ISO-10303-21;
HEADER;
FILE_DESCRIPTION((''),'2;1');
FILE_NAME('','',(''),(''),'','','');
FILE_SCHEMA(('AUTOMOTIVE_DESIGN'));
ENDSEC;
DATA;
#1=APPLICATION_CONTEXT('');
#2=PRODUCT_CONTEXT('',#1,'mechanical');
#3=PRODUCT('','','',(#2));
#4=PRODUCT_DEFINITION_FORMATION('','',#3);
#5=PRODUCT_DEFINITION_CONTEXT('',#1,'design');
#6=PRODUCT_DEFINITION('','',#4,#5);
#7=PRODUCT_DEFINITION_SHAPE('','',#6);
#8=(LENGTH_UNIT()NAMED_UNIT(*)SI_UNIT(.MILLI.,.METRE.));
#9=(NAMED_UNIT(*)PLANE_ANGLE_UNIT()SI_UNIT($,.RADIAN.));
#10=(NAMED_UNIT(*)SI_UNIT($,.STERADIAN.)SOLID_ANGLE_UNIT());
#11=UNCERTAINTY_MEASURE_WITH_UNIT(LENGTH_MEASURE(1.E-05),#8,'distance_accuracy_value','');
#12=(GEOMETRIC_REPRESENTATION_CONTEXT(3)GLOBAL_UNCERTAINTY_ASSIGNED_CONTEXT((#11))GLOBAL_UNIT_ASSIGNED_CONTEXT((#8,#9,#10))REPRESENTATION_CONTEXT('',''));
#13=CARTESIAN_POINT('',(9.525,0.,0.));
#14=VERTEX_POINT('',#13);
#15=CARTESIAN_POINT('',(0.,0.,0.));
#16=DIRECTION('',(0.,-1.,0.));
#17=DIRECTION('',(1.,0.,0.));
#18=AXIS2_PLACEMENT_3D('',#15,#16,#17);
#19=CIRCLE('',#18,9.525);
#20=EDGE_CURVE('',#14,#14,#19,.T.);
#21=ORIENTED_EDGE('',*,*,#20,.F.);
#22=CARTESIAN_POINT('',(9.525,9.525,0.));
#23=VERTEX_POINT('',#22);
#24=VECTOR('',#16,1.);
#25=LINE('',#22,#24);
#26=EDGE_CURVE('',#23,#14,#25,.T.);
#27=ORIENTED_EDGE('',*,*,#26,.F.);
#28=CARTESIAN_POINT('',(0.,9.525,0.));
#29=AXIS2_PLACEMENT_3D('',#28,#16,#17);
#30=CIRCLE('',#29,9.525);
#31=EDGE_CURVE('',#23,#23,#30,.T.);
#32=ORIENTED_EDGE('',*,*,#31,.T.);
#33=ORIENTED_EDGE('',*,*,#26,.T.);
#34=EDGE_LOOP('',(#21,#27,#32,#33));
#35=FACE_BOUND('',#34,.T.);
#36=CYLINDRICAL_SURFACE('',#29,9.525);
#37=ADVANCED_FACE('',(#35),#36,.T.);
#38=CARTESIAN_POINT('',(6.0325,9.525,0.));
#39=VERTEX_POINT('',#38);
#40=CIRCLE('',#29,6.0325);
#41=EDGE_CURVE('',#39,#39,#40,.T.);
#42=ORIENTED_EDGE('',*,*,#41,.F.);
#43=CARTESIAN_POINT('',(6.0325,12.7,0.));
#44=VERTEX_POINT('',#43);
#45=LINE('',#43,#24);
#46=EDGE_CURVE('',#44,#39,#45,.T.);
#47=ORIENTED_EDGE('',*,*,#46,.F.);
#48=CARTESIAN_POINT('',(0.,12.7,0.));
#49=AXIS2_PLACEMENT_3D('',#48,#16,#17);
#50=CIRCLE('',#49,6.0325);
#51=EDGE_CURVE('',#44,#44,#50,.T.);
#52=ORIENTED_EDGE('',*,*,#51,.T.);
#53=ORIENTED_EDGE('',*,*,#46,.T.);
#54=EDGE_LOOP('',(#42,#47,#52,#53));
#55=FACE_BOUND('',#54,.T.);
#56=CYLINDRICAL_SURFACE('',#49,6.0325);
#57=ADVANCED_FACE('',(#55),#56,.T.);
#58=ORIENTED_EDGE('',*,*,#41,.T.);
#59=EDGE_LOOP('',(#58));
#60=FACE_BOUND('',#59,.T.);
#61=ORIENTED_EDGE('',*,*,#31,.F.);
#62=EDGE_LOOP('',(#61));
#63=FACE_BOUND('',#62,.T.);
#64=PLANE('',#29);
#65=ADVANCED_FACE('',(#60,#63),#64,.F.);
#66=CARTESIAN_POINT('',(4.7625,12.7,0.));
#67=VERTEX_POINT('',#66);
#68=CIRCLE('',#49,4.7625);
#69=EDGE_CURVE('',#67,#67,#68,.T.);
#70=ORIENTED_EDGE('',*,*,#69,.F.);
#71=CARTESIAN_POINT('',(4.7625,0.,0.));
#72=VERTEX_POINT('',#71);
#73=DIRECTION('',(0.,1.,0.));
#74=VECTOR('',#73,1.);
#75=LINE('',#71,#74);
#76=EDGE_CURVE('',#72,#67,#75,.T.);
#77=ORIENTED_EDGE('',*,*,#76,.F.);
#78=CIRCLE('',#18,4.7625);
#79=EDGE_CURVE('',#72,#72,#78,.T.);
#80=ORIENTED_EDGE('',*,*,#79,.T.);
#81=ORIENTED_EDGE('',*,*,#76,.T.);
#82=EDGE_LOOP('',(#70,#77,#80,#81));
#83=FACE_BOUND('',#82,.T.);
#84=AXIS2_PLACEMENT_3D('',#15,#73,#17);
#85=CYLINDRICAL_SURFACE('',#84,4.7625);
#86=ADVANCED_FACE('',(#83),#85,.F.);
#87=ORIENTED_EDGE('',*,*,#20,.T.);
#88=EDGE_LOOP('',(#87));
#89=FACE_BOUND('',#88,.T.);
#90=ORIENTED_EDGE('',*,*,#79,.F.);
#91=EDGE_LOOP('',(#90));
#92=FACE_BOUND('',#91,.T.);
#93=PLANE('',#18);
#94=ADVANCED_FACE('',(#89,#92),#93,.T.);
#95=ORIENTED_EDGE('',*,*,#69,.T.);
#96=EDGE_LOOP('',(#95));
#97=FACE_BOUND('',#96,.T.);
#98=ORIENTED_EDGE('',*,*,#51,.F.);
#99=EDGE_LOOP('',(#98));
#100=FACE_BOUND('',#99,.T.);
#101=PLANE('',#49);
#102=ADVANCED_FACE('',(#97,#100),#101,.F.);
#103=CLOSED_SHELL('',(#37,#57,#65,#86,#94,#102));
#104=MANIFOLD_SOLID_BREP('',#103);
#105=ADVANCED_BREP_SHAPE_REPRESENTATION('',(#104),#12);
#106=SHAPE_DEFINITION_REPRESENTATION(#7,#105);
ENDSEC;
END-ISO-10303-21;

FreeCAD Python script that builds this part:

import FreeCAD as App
import Part
import Sketcher

V = App.Vector
Q = App.Units.Quantity

doc = App.newDocument("Part")
body = doc.addObject("PartDesign::Body", "Body")

# Sketch on XY plane
sketch1 = body.newObject("Sketcher::SketchObject", "Sketch")
sketch1.AttachmentSupport = (doc.getObject("XY_Plane"), [""])
sketch1.MapMode = "FlatFace"
sketch1.addGeometry([
    Part.LineSegment(V(4.8, 12.7, 0), V(4.8, 0, 0)),  # 0
    Part.LineSegment(V(4.8, 0, 0), V(9.5, 0, 0)),  # 1
    Part.LineSegment(V(9.5, 0, 0), V(9.5, 9.5, 0)),  # 2
    Part.LineSegment(V(9.5, 9.5, 0), V(6, 9.5, 0)),  # 3
    Part.LineSegment(V(6, 9.5, 0), V(6, 12.7, 0)),  # 4
    Part.LineSegment(V(6, 12.7, 0), V(4.8, 12.7, 0)),  # 5
], False)
sketch1.addConstraint([
    Sketcher.Constraint("Coincident", 0, 2, 1, 1),
    Sketcher.Constraint("Coincident", 1, 2, 2, 1),
    Sketcher.Constraint("Coincident", 2, 2, 3, 1),
    Sketcher.Constraint("Coincident", 3, 2, 4, 1),
    Sketcher.Constraint("Coincident", 4, 2, 5, 1),
    Sketcher.Constraint("Coincident", 5, 2, 0, 1),
    Sketcher.Constraint("Vertical", 0),
    Sketcher.Constraint("Horizontal", 1),
    Sketcher.Constraint("Vertical", 2),
    Sketcher.Constraint("Horizontal", 3),
    Sketcher.Constraint("Vertical", 4),
    Sketcher.Constraint("Horizontal", 5),
    Sketcher.Constraint("PointOnObject", 0, 2, -1),
    Sketcher.Constraint("DistanceY", 0, 2, 0, 1, Q("0.5 in")),
    Sketcher.Constraint("DistanceX", 5, 2, 5, 1, Q("0.05 in")),
    Sketcher.Constraint("DistanceX", 1, 1, 1, 2, Q("0.1875 in")),
    Sketcher.Constraint("DistanceY", 2, 1, 2, 2, Q("0.375 in")),
    Sketcher.Constraint("DistanceX", -1, 1, 0, 2, Q("0.1875 in")),
])
revolution = body.newObject("PartDesign::Revolution", "Revolution")
revolution.Profile = sketch1
revolution.ReferenceAxis = (sketch1, ["V_Axis"])
revolution.Angle = 360

doc.recompute()
